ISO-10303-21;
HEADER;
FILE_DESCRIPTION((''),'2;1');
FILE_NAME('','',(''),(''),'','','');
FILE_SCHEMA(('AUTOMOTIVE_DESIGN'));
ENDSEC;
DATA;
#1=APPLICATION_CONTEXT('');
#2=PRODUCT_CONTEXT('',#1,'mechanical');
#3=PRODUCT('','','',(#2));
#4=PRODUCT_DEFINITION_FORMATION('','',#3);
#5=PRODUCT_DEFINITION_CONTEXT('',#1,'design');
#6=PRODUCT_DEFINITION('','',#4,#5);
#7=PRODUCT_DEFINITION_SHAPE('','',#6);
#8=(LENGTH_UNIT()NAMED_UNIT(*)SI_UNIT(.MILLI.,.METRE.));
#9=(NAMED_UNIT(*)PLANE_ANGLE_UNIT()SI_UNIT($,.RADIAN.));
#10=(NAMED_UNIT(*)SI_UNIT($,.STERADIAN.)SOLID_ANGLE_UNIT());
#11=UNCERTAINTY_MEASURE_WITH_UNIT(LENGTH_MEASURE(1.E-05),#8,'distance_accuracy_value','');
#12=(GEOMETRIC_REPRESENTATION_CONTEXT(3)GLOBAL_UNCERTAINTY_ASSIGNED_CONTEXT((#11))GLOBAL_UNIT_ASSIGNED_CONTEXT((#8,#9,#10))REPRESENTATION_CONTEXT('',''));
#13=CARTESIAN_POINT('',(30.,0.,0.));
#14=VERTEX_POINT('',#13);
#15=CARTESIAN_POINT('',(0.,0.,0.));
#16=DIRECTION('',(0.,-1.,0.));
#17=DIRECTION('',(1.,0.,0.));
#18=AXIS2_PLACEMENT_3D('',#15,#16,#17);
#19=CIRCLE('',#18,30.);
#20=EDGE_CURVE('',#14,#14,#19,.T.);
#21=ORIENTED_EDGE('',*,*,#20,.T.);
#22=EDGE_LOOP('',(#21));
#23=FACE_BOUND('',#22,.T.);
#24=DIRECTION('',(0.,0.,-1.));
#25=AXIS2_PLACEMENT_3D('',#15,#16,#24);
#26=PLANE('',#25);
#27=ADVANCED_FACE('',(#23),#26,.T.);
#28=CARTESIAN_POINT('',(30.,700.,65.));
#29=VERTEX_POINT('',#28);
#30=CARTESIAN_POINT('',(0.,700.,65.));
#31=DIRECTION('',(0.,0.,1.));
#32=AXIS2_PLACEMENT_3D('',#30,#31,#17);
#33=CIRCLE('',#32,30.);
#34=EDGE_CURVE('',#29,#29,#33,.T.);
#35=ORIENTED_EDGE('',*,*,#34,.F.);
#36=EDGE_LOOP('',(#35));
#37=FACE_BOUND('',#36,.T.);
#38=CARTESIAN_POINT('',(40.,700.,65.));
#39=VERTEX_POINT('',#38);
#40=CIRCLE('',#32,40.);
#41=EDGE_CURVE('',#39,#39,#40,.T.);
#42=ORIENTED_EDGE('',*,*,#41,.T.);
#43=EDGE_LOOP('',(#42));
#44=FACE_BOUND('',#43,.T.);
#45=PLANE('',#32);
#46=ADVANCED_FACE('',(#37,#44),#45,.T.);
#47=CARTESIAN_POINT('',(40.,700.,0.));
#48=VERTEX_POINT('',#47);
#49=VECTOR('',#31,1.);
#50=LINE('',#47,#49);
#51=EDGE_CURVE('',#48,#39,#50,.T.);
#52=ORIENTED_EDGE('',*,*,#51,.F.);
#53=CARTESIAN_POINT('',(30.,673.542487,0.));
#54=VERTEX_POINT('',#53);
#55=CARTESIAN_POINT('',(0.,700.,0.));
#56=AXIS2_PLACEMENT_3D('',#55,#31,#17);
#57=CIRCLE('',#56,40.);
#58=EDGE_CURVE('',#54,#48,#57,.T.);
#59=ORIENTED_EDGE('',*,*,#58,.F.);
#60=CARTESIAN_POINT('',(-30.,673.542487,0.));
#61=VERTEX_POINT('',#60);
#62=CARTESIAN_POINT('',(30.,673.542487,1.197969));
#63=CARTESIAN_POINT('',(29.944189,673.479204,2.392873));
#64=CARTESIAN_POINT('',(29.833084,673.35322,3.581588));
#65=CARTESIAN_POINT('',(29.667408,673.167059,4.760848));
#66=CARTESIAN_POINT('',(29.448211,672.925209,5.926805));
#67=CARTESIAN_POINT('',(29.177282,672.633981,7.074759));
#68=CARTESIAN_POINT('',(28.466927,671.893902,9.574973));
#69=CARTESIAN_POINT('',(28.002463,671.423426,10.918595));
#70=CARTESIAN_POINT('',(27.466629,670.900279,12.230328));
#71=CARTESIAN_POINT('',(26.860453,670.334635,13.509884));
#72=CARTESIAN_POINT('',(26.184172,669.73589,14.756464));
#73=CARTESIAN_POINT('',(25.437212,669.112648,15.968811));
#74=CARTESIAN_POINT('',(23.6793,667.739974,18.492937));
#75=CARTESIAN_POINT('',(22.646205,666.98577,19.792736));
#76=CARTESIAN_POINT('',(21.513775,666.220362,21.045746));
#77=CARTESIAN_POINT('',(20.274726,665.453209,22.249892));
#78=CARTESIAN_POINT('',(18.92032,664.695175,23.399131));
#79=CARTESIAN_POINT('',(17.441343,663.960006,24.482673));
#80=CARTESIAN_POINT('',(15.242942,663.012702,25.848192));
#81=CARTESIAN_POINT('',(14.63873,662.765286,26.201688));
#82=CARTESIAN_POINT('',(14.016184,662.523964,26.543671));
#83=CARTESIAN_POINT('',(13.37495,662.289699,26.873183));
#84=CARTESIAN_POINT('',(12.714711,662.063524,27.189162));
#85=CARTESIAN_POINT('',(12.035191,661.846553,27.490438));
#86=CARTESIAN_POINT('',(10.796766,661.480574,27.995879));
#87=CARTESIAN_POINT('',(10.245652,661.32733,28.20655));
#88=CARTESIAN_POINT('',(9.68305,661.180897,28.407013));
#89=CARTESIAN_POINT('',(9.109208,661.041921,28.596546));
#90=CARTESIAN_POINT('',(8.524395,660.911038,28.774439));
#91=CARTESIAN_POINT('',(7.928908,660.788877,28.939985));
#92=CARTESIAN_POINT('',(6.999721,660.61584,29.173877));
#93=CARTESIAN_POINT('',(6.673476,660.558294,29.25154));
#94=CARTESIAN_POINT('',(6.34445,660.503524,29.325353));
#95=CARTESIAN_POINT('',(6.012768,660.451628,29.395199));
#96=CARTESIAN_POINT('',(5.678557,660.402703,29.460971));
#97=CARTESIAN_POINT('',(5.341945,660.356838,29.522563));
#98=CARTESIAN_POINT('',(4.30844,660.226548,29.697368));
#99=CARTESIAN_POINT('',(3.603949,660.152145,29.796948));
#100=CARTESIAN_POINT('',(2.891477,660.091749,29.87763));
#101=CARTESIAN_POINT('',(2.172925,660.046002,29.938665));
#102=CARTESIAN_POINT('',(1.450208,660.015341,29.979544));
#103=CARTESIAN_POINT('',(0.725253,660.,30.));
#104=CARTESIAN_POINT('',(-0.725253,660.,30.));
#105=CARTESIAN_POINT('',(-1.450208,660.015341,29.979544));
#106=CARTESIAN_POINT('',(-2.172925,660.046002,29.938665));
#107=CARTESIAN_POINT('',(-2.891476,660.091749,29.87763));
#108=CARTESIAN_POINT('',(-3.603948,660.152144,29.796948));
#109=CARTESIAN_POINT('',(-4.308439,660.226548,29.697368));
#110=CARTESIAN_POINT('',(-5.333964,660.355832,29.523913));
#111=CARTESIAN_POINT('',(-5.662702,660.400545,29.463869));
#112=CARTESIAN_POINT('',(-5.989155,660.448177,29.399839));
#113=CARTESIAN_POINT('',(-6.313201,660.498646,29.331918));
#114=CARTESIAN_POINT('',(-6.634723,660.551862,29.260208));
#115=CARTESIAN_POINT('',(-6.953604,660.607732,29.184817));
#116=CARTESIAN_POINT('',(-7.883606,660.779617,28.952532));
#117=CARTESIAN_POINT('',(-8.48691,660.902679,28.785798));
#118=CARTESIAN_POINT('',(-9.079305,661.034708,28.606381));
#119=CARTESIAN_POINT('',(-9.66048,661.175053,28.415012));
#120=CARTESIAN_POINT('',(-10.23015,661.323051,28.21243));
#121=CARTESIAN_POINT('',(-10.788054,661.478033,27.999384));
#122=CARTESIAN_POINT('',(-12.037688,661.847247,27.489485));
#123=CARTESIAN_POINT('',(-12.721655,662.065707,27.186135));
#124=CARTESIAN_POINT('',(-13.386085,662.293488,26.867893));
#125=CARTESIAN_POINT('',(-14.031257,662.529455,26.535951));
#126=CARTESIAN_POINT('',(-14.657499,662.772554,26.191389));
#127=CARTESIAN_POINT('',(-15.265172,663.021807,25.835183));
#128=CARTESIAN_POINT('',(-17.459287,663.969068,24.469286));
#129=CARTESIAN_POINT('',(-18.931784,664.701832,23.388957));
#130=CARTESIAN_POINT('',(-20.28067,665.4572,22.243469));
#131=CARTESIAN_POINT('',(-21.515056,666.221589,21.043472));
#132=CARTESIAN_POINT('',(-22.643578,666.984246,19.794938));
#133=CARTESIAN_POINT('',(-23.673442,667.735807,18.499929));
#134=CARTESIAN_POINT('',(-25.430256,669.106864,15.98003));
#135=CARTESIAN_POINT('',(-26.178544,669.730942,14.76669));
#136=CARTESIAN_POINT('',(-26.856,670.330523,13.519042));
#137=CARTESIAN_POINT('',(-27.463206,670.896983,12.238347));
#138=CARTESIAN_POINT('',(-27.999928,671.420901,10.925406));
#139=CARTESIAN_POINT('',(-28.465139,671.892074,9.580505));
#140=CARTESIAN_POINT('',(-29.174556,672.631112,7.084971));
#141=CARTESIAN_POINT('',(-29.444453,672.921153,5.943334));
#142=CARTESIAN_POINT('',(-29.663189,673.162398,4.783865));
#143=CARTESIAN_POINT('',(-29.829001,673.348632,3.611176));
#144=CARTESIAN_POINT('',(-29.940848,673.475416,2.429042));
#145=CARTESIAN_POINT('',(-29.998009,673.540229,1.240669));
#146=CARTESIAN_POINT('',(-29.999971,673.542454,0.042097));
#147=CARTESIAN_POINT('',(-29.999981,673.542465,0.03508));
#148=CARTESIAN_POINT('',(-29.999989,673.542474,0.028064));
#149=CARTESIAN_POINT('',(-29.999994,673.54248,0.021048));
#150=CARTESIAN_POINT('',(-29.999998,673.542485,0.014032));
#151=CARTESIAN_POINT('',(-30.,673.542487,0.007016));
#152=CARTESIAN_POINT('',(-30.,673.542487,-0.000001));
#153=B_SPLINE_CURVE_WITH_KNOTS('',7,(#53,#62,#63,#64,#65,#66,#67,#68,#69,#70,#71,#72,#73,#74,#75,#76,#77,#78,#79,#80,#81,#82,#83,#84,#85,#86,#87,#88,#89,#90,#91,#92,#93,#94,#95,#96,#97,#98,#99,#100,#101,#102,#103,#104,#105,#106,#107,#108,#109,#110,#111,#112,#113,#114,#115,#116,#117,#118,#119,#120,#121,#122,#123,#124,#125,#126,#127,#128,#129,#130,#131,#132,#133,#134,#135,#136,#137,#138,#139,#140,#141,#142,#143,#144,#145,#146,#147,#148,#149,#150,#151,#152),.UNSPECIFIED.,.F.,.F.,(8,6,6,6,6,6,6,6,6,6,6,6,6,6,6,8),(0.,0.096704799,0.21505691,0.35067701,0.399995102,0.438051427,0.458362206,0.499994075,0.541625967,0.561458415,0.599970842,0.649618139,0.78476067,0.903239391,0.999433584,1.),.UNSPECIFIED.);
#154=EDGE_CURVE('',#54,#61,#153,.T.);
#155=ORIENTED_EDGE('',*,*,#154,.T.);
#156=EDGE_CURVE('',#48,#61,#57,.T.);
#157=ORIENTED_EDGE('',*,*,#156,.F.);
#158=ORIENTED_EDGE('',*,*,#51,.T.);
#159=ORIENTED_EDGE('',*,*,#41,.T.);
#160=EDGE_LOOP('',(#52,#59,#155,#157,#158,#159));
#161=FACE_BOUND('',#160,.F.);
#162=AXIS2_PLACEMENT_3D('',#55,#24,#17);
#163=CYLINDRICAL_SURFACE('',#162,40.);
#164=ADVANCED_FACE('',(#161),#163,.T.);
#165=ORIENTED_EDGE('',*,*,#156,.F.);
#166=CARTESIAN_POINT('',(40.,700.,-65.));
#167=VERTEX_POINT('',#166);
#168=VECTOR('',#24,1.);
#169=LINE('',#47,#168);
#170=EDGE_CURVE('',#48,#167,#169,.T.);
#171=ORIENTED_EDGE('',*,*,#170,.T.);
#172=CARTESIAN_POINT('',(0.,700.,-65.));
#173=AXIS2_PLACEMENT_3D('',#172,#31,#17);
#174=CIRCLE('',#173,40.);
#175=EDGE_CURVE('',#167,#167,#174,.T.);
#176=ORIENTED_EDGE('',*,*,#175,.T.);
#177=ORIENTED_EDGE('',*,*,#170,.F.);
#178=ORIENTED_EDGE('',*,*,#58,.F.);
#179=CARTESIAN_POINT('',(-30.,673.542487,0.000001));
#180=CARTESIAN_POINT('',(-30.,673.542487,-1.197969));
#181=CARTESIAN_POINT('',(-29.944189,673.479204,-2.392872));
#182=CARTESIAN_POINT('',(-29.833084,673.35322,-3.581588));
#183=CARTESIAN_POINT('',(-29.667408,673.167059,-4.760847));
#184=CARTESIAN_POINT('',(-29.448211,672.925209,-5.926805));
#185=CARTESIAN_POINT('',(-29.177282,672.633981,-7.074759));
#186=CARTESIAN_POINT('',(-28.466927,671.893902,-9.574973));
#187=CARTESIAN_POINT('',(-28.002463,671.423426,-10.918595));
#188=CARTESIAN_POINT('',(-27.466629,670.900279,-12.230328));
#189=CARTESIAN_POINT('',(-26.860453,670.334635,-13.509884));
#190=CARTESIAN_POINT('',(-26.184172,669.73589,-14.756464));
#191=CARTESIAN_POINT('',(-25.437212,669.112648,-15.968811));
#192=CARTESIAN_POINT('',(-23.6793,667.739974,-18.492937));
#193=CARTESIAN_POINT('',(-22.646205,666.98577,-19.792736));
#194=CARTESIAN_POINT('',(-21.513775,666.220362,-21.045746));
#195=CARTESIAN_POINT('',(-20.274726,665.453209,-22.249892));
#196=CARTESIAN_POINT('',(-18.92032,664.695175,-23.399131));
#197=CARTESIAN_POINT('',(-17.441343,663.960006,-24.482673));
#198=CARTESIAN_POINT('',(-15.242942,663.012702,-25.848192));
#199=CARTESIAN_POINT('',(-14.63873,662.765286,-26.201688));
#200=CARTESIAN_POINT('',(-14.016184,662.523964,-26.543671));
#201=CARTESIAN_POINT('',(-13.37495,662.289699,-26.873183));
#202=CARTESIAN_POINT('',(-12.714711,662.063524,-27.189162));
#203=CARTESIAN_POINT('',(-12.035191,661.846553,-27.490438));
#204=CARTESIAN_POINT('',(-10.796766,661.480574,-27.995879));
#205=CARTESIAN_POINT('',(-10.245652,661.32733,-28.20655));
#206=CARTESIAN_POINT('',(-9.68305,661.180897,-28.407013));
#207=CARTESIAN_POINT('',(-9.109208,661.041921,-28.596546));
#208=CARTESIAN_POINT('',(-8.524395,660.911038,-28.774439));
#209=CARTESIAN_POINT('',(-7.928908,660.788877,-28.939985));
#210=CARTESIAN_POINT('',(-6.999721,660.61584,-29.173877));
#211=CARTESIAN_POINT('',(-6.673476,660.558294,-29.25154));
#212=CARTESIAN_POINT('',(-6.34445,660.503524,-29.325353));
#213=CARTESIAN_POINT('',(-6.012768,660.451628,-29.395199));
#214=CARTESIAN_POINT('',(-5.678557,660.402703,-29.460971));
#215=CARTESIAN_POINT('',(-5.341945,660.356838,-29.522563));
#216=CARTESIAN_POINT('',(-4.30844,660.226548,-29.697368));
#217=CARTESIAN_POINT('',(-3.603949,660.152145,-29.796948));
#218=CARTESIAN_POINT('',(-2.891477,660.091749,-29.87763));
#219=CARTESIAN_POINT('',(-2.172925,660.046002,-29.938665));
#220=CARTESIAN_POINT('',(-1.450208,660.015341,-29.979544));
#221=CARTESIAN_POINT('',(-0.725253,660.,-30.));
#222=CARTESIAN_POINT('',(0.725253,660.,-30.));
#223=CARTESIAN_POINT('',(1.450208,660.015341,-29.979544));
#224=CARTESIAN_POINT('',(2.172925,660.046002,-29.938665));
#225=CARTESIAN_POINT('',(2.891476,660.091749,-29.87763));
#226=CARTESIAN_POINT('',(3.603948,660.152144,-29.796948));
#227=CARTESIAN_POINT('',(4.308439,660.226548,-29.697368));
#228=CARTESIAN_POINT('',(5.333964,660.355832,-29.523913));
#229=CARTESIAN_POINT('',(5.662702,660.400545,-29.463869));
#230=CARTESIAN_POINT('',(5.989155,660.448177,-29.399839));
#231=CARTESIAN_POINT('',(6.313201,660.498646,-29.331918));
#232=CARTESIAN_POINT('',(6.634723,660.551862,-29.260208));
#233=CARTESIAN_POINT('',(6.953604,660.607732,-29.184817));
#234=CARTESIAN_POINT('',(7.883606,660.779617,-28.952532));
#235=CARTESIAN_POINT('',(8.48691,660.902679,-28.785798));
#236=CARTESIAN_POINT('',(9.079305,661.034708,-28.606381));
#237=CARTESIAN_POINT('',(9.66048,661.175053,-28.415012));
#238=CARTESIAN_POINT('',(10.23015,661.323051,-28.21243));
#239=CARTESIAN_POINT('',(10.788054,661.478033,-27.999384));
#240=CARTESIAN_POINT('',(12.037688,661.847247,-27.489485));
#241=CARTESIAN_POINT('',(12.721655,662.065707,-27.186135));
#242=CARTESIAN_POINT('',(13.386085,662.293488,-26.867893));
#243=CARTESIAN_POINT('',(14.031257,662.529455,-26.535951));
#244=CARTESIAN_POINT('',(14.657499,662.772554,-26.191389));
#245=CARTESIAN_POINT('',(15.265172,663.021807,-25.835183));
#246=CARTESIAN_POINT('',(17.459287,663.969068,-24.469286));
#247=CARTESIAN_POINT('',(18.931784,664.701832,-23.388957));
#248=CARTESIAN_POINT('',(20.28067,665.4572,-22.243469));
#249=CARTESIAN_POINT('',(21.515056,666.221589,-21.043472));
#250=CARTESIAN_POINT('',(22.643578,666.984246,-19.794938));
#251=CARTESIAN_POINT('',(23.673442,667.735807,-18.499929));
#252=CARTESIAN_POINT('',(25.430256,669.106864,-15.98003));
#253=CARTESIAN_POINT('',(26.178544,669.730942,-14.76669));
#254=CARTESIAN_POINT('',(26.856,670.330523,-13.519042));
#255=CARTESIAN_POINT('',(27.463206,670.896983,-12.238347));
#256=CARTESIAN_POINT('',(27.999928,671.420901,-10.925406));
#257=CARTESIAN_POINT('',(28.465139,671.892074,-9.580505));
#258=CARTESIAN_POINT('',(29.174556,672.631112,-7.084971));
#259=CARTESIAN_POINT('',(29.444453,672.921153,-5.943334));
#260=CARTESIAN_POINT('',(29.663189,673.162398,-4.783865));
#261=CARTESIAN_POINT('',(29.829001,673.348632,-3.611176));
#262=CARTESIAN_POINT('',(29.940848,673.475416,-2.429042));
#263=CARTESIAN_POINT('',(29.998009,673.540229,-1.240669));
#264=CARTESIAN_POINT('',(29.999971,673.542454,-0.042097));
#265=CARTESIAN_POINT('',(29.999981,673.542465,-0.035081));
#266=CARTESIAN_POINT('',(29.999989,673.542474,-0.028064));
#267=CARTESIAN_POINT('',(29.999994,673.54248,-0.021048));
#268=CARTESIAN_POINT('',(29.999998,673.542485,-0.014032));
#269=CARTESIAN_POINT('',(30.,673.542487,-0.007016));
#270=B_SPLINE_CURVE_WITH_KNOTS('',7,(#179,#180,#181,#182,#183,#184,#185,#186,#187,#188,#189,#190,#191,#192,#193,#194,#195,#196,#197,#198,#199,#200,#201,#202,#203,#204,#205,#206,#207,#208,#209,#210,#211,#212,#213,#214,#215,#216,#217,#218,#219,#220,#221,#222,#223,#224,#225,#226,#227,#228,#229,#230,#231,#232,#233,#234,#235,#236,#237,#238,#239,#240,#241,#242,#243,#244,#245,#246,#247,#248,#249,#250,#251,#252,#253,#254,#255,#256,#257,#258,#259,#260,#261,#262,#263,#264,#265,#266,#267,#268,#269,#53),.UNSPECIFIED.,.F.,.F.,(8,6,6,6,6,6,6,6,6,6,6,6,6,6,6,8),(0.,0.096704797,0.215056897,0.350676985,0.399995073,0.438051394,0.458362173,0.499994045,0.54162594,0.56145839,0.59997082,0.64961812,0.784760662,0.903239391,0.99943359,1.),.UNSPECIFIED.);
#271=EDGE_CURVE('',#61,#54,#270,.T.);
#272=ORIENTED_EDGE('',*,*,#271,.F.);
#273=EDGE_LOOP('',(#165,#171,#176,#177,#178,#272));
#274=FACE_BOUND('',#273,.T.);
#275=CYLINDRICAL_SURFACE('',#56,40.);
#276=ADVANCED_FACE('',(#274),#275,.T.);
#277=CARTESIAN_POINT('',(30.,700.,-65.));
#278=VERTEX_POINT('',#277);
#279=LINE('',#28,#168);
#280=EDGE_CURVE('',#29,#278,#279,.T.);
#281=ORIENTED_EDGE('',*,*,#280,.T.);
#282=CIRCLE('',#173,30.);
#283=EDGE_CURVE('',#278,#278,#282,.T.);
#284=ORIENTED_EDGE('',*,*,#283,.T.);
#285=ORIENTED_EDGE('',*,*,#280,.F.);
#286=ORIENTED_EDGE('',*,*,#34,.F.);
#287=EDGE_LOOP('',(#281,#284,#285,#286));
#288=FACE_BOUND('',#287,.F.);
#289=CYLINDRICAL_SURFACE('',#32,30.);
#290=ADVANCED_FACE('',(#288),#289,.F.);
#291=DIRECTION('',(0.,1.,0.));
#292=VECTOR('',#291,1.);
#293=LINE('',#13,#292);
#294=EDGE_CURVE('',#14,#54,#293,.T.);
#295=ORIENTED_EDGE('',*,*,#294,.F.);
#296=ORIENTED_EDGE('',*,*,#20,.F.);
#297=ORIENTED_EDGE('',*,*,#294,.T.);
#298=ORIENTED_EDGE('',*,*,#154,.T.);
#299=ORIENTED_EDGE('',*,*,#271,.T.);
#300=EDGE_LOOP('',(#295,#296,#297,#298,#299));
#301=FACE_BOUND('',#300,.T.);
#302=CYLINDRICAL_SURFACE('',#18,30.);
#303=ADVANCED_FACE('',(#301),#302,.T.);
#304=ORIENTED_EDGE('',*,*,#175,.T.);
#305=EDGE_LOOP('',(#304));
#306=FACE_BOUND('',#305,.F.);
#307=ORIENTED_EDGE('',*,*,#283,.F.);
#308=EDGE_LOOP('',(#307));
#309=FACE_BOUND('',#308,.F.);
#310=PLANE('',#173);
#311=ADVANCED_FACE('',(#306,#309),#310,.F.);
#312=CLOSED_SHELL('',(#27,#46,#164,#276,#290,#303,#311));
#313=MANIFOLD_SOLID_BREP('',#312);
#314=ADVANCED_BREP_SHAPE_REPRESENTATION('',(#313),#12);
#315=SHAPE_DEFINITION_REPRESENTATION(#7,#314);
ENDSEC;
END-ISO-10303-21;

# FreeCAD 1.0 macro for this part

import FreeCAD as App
import Part
import Sketcher
from FreeCAD import Vector

doc = App.newDocument("Part")
body = doc.addObject("PartDesign::Body", "Body")

# Sketch on XZ plane
sketch1 = doc.addObject("Sketcher::SketchObject", "Sketch")
body.addObject(sketch1)
sketch1.AttachmentSupport = (doc.XZ_Plane, [""])
sketch1.MapMode = "FlatFace"
sketch1.addGeometry(Part.Circle(Vector(0, 0, 0), Vector(0, 0, 1), 30), False)
sketch1.addConstraint([
    Sketcher.Constraint("Coincident", 0, 3, -1, 1),
    Sketcher.Constraint("Diameter", 0, 60.0),
])
pad1 = doc.addObject("PartDesign::Pad", "Pad")
body.addObject(pad1)
pad1.Profile = sketch1
pad1.Length = 700
pad1.Reversed = True

# Sketch on XY plane
sketch2 = doc.addObject("Sketcher::SketchObject", "Sketch001")
body.addObject(sketch2)
sketch2.AttachmentSupport = (doc.XY_Plane, [""])
sketch2.MapMode = "FlatFace"
sketch2.addGeometry(Part.Circle(Vector(0, 700, 0), Vector(0, 0, 1), 40), False)
sketch2.addConstraint([
    Sketcher.Constraint("PointOnObject", 0, 3, -2),
    Sketcher.Constraint("Diameter", 0, 80.0),
    Sketcher.Constraint("DistanceY", -1, 1, 0, 3, 700.0),
])
pad2 = doc.addObject("PartDesign::Pad", "Pad001")
body.addObject(pad2)
pad2.Profile = sketch2
pad2.Length = 130
pad2.Midplane = True

# Sketch on XY plane
sketch3 = doc.addObject("Sketcher::SketchObject", "Sketch002")
body.addObject(sketch3)
sketch3.AttachmentSupport = (doc.XY_Plane, [""])
sketch3.MapMode = "FlatFace"
sketch3.AttachmentOffset = App.Placement(Vector(0, 0, 65), App.Rotation())
sketch3.addGeometry(Part.Circle(Vector(0, 700, 0), Vector(0, 0, 1), 30), False)
sketch3.addConstraint([
    Sketcher.Constraint("PointOnObject", 0, 3, -2),
    Sketcher.Constraint("Diameter", 0, 60.0),
    Sketcher.Constraint("DistanceY", -1, 1, 0, 3, 700.0),
])
pocket1 = doc.addObject("PartDesign::Pocket", "Pocket")
body.addObject(pocket1)
pocket1.Profile = sketch3
pocket1.Type = "ThroughAll"

doc.recompute()
